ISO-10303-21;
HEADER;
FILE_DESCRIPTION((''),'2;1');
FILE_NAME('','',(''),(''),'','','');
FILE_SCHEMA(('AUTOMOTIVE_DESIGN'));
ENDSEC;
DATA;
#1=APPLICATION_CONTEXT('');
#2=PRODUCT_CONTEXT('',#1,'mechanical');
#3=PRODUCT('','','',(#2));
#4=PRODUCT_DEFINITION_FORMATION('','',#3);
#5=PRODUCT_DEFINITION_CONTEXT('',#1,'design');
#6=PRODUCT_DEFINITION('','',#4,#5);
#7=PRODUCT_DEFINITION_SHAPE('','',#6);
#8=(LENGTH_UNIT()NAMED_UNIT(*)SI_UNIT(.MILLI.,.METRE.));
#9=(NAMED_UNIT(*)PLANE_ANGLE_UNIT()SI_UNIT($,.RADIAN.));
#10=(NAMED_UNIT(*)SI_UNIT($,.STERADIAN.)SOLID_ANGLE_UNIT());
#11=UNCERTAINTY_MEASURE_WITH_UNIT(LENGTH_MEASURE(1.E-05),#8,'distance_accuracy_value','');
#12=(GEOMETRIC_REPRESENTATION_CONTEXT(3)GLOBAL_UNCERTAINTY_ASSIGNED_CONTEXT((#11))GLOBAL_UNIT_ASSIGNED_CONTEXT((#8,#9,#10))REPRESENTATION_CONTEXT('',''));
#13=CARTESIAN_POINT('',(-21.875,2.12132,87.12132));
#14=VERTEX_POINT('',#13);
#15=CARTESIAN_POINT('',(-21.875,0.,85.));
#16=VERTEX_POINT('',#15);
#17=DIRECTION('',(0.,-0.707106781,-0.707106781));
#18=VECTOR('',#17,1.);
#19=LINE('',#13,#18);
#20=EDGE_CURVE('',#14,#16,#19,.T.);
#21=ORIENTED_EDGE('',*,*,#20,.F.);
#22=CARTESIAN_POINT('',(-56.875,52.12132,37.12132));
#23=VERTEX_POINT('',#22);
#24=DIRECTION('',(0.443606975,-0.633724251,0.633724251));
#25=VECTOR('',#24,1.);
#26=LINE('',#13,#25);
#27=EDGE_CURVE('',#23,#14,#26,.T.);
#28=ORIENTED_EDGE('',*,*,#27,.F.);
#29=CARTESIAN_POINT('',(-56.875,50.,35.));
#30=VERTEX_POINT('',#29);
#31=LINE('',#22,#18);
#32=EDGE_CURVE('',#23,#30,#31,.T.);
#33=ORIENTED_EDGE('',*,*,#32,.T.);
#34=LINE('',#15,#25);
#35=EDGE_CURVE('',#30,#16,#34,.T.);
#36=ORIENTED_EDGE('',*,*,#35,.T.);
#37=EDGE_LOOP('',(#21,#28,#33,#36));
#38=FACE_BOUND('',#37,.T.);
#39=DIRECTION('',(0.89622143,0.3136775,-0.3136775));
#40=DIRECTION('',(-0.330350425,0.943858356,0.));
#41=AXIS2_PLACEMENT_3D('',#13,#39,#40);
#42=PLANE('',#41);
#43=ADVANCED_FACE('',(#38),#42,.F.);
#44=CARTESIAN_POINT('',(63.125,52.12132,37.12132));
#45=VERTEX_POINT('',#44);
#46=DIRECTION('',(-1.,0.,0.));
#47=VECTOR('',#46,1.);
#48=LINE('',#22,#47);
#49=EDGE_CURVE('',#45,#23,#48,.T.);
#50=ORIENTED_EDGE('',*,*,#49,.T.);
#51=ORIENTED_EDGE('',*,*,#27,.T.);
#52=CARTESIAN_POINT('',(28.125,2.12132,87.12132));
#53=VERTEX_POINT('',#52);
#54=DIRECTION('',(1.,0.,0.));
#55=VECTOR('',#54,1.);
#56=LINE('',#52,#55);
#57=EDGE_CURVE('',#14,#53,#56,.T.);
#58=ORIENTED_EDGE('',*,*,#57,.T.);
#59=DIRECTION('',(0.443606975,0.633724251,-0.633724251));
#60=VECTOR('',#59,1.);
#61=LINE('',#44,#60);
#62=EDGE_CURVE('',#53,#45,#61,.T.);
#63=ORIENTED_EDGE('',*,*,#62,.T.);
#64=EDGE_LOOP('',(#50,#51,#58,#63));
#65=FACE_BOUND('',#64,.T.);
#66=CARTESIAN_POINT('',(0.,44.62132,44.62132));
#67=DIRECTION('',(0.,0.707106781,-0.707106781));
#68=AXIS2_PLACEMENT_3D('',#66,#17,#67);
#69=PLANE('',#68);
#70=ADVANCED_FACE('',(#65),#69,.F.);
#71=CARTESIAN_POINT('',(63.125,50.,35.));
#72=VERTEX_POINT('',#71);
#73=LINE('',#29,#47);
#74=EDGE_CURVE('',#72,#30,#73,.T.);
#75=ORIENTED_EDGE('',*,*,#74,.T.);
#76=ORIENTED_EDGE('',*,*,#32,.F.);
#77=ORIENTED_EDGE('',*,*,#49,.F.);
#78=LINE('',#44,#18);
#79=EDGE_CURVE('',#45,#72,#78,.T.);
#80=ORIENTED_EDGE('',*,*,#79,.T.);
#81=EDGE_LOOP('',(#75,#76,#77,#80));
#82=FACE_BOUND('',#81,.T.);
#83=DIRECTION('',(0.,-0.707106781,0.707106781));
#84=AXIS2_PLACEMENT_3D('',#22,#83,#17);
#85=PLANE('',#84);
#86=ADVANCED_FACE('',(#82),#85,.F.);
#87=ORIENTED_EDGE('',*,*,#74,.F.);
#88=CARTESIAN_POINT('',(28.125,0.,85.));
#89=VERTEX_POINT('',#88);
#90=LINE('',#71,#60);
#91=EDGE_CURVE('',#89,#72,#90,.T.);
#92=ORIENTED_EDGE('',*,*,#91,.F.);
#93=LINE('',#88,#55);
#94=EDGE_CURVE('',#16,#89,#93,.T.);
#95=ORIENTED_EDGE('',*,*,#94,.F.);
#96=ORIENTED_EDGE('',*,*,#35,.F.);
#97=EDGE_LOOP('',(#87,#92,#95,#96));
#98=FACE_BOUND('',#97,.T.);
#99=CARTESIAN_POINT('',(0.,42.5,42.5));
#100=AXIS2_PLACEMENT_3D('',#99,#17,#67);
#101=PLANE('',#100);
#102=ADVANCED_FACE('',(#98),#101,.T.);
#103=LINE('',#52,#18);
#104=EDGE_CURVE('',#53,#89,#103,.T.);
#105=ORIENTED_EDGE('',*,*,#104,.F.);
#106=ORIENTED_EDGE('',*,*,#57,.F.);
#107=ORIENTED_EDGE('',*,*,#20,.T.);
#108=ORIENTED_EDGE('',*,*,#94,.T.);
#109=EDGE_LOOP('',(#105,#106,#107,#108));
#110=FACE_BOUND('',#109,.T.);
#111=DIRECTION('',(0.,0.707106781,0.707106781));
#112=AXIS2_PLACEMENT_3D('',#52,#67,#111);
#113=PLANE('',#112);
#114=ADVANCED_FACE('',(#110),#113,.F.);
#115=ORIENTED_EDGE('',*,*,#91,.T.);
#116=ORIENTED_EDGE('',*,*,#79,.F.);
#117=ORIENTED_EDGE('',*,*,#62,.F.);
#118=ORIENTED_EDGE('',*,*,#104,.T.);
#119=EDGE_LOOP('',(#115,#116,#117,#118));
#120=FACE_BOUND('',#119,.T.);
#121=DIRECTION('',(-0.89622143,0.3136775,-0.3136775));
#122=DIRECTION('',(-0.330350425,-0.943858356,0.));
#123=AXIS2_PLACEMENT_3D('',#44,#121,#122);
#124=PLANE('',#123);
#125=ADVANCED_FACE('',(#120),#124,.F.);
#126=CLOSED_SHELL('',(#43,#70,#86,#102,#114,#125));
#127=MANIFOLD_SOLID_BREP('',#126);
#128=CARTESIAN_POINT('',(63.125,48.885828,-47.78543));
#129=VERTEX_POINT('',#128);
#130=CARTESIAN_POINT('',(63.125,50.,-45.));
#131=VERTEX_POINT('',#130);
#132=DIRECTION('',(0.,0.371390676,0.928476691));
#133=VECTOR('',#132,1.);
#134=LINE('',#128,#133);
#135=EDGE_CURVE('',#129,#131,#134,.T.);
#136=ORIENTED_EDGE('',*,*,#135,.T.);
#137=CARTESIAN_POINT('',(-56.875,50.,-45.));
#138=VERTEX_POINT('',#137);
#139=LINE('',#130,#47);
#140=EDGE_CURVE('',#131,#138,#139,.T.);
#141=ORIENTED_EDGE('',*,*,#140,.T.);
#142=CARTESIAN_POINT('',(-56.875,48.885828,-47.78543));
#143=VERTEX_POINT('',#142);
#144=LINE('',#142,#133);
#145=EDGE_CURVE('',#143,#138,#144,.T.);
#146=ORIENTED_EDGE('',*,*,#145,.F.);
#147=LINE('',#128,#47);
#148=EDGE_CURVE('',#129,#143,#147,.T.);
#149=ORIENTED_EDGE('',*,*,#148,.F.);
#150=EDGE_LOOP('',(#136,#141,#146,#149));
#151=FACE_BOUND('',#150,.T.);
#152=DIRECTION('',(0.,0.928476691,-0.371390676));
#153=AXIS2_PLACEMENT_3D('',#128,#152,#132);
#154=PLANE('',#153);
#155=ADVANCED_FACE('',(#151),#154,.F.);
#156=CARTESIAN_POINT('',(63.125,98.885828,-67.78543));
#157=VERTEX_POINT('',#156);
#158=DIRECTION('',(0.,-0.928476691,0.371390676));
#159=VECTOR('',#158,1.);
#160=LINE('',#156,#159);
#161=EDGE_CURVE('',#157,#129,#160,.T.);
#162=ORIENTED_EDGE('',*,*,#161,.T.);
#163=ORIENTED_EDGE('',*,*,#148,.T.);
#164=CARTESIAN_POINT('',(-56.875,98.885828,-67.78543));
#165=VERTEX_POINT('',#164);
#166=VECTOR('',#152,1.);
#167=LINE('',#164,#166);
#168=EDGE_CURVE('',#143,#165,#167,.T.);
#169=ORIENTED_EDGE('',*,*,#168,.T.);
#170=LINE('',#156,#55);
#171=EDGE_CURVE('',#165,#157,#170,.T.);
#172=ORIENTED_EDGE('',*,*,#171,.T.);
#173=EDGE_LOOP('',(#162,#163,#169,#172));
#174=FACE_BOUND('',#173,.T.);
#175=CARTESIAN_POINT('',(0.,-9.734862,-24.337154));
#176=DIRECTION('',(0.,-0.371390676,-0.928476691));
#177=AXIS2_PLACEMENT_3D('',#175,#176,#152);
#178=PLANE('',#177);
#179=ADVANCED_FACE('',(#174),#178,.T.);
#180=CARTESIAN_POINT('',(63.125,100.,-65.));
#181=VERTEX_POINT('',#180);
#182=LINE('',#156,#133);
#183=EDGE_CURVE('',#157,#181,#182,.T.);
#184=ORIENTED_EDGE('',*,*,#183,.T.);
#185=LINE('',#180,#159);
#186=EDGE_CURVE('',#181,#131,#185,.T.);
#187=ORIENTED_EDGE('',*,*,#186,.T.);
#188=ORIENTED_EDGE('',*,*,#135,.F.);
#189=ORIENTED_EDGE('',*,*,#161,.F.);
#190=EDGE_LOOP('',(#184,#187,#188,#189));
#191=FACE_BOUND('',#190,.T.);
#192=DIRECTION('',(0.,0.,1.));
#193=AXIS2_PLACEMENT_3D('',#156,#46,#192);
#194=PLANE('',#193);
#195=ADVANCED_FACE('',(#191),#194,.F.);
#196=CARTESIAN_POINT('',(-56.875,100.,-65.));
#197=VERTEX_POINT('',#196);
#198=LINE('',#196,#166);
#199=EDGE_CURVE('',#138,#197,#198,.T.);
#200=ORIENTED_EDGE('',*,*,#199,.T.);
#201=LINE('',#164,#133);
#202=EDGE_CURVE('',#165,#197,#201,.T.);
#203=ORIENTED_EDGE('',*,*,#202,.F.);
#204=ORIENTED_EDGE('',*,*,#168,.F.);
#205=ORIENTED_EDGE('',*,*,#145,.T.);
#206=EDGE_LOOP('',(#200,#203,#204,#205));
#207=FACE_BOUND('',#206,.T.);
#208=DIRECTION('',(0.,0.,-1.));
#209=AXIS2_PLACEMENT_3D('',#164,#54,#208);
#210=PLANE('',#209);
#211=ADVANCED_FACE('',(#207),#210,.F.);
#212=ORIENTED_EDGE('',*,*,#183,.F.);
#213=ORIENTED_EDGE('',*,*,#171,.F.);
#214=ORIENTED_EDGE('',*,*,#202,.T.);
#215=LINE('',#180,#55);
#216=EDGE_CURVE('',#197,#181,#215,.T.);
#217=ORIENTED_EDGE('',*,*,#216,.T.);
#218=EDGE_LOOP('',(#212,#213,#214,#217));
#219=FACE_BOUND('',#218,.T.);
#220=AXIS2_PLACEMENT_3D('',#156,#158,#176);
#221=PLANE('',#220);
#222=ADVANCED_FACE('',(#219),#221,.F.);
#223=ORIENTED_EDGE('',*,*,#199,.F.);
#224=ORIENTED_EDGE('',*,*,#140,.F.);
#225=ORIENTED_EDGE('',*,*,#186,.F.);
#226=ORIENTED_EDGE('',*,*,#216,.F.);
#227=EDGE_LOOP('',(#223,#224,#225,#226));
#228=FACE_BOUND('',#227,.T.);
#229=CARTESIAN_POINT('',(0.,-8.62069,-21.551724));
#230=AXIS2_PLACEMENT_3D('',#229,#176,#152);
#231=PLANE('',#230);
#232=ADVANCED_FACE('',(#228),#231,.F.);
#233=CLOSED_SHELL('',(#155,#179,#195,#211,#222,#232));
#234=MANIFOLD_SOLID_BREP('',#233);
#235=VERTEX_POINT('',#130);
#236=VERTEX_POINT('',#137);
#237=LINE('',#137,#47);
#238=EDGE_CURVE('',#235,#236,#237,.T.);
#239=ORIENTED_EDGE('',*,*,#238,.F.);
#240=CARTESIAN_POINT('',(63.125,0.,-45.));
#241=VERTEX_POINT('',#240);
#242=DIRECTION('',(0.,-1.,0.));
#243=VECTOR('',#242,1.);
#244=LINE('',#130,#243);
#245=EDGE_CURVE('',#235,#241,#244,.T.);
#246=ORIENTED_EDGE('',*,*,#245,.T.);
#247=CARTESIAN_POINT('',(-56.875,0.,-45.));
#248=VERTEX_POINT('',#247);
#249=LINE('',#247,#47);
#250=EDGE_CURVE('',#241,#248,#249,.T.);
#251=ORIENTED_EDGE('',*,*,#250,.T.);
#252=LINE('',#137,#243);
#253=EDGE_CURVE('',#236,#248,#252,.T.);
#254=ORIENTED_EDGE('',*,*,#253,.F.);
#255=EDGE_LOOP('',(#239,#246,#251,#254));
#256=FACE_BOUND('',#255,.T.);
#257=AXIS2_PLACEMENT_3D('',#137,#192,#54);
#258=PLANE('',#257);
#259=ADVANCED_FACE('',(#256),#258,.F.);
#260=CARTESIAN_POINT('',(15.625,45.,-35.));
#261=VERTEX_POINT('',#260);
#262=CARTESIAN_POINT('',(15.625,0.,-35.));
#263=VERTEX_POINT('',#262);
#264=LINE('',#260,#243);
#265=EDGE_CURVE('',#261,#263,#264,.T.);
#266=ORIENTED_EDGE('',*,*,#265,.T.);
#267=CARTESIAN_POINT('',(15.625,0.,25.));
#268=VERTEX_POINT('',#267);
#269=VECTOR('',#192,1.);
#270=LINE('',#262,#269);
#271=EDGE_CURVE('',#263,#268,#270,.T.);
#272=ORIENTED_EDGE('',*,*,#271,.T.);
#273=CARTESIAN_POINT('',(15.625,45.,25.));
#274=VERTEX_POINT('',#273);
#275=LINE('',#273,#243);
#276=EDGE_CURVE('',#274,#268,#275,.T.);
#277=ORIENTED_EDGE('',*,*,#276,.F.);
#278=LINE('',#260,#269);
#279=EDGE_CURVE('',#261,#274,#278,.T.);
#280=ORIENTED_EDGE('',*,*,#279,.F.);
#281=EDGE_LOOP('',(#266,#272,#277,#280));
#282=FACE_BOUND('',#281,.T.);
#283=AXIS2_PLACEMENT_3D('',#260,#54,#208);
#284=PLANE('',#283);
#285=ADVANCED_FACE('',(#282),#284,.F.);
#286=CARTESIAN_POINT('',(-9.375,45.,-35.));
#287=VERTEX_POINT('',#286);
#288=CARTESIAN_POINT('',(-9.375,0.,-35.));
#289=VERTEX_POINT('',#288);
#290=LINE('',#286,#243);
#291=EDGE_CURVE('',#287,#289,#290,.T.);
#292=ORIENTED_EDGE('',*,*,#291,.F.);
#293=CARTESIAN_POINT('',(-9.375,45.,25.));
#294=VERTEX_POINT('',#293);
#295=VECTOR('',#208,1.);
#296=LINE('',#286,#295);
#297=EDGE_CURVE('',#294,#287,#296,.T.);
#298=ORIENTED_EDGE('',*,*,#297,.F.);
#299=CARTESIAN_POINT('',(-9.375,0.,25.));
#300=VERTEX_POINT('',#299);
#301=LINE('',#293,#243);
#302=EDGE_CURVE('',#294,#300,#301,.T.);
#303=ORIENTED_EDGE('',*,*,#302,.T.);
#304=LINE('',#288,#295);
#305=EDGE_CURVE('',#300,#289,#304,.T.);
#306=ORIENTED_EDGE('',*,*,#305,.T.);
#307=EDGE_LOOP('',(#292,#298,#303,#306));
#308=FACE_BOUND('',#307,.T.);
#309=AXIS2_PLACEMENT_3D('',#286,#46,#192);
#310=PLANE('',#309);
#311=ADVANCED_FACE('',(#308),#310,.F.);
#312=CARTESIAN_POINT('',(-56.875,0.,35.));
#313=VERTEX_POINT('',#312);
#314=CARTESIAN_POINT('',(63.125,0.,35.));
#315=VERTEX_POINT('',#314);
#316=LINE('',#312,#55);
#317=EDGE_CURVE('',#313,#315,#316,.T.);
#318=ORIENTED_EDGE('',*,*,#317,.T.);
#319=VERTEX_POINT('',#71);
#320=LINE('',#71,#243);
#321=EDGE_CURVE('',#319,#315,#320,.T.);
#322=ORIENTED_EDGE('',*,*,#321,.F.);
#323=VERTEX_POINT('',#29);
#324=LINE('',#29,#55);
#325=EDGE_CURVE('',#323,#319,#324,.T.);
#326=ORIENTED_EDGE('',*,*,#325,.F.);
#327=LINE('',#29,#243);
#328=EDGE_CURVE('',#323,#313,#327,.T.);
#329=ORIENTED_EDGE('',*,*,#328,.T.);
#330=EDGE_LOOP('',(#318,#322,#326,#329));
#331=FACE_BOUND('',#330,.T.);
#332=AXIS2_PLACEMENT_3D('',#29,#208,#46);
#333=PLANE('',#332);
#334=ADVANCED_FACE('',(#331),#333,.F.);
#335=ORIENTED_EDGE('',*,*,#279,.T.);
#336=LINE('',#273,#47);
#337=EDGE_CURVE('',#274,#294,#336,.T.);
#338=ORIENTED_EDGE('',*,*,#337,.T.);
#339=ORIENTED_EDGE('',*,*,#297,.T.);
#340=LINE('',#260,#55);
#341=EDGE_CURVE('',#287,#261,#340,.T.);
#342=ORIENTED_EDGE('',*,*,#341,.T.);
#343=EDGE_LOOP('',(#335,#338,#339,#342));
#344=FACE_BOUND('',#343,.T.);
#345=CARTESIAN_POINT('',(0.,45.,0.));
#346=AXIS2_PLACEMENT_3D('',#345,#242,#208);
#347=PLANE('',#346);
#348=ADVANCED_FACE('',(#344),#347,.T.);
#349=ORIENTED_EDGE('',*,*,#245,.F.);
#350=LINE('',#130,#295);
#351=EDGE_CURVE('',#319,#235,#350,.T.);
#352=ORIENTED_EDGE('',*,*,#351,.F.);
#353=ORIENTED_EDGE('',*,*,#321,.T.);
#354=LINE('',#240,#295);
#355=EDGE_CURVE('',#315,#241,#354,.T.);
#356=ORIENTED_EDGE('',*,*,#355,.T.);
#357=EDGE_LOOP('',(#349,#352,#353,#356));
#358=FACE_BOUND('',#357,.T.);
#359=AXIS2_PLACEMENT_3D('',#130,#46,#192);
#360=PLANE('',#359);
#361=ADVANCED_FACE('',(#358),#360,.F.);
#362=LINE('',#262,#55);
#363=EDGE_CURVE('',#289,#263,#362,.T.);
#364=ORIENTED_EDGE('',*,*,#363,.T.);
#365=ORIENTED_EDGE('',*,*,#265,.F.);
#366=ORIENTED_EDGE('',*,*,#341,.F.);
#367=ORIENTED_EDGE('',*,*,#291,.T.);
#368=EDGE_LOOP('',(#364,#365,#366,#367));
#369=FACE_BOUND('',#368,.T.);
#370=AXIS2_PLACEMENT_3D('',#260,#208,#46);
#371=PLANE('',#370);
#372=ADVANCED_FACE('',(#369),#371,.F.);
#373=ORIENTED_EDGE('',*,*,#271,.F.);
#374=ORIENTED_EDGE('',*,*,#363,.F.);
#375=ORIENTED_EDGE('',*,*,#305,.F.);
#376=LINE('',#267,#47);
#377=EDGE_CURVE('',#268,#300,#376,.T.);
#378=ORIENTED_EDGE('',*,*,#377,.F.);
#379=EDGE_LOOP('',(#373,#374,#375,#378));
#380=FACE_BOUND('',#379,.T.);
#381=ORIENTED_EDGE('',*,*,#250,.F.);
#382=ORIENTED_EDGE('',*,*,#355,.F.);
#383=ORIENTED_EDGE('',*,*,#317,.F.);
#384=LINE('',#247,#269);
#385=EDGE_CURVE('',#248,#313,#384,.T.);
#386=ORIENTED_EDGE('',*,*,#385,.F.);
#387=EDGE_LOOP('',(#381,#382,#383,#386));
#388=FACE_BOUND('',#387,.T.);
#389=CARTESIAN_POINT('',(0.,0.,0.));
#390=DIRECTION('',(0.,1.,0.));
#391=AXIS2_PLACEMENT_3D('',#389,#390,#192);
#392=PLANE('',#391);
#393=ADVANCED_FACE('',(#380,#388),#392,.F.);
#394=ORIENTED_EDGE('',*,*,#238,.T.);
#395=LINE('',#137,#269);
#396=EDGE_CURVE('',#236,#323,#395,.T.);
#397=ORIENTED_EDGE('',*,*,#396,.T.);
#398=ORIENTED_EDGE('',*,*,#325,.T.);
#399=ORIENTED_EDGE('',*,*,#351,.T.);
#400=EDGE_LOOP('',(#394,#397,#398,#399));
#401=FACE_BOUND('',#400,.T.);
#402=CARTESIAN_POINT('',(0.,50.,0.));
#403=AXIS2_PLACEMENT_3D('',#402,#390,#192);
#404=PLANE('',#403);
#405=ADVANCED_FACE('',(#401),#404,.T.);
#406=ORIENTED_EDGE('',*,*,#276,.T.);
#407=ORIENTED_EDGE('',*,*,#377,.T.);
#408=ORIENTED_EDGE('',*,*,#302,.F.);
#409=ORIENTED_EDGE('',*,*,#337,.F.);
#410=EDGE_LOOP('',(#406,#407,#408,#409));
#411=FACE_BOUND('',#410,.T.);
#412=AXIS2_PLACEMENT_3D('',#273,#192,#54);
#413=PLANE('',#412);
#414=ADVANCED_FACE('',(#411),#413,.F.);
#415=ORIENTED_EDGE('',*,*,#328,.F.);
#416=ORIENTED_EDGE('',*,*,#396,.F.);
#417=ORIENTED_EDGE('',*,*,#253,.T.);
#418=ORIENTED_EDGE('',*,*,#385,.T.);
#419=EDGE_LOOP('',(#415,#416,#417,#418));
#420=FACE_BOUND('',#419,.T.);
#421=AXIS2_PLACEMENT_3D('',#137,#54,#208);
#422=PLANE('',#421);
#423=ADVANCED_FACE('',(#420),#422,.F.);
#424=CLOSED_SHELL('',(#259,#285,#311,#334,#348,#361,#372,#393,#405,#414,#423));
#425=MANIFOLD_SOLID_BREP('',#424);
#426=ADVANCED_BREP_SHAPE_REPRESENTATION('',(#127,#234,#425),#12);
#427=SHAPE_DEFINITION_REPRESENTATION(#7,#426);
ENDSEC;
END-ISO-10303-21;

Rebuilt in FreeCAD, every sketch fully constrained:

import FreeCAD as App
import Part
import Sketcher

V = App.Vector
Q = App.Units.Quantity

doc = App.newDocument("Part")
body = doc.addObject("PartDesign::Body", "Body")

# Sketch on XZ plane
sketch1 = body.newObject("Sketcher::SketchObject", "Sketch")
sketch1.AttachmentSupport = (doc.getObject("XZ_Plane"), [""])
sketch1.MapMode = "FlatFace"
sketch1.addGeometry([
    Part.LineSegment(V(-57, -45, 0), V(-57, 35, 0)),
    Part.LineSegment(V(-57, 35, 0), V(63, 35, 0)),
    Part.LineSegment(V(63, 35, 0), V(63, -45, 0)),
    Part.LineSegment(V(63, -45, 0), V(-57, -45, 0)),
], False)
sketch1.addConstraint([
    Sketcher.Constraint("Coincident", 0, 2, 1, 1),
    Sketcher.Constraint("Coincident", 1, 2, 2, 1),
    Sketcher.Constraint("Coincident", 2, 2, 3, 1),
    Sketcher.Constraint("Coincident", 3, 2, 0, 1),
    Sketcher.Constraint("Vertical", 0),
    Sketcher.Constraint("Horizontal", 1),
    Sketcher.Constraint("Vertical", 2),
    Sketcher.Constraint("Horizontal", 3),
    Sketcher.Constraint("DistanceX", 1, 1, 1, 2, Q("120 mm")),
    Sketcher.Constraint("DistanceY", 0, 1, 0, 2, Q("80 mm")),
    Sketcher.Constraint("DistanceY", -1, 1, 0, 2, Q("35 mm")),
    Sketcher.Constraint("DistanceX", 0, 2, -1, 1, Q("56.875 mm")),
])
pad1 = body.newObject("PartDesign::Pad", "Pad")
pad1.Profile = sketch1
pad1.Length = 50
pad1.Reversed = True

# Sketch on XZ plane
sketch2 = body.newObject("Sketcher::SketchObject", "Sketch001")
sketch2.AttachmentSupport = (doc.getObject("XZ_Plane"), [""])
sketch2.MapMode = "FlatFace"
sketch2.addGeometry([
    Part.LineSegment(V(-9, 25, 0), V(-9, -35, 0)),
    Part.LineSegment(V(-9, -35, 0), V(16, -35, 0)),
    Part.LineSegment(V(16, -35, 0), V(16, 25, 0)),
    Part.LineSegment(V(16, 25, 0), V(-9, 25, 0)),
], False)
sketch2.addConstraint([
    Sketcher.Constraint("Coincident", 0, 2, 1, 1),
    Sketcher.Constraint("Coincident", 1, 2, 2, 1),
    Sketcher.Constraint("Coincident", 2, 2, 3, 1),
    Sketcher.Constraint("Coincident", 3, 2, 0, 1),
    Sketcher.Constraint("Vertical", 0),
    Sketcher.Constraint("Horizontal", 1),
    Sketcher.Constraint("Vertical", 2),
    Sketcher.Constraint("Horizontal", 3),
    Sketcher.Constraint("DistanceX", 1, 1, 1, 2, Q("25 mm")),
    Sketcher.Constraint("DistanceY", 0, 2, 0, 1, Q("60 mm")),
    Sketcher.Constraint("DistanceY", 0, 2, -1, 1, Q("35 mm")),
    Sketcher.Constraint("DistanceX", 0, 2, -1, 1, Q("9.375 mm")),
])
pocket1 = body.newObject("PartDesign::Pocket", "Pocket")
pocket1.Profile = sketch2
pocket1.Length = 45
body2 = doc.addObject("PartDesign::Body", "Body001")

# Sketch on an angled plane
sketch3 = body2.newObject("Sketcher::SketchObject", "Sketch002")
sketch3.Placement = App.Placement(V(0, -8.62069, -21.551724), App.Rotation(V(-1, 0, 0), V(0, 0.928476691, -0.371390676), V(0, -0.371390676, -0.928476691), "ZXY"))
sketch3.addGeometry([
    Part.LineSegment(V(-63, 117, 0), V(-63, 63, 0)),
    Part.LineSegment(V(-63, 63, 0), V(57, 63, 0)),
    Part.LineSegment(V(57, 63, 0), V(57, 117, 0)),
    Part.LineSegment(V(57, 117, 0), V(-63, 117, 0)),
], False)
sketch3.addConstraint([
    Sketcher.Constraint("Coincident", 0, 2, 1, 1),
    Sketcher.Constraint("Coincident", 1, 2, 2, 1),
    Sketcher.Constraint("Coincident", 2, 2, 3, 1),
    Sketcher.Constraint("Coincident", 3, 2, 0, 1),
    Sketcher.Constraint("Vertical", 0),
    Sketcher.Constraint("Horizontal", 1),
    Sketcher.Constraint("Vertical", 2),
    Sketcher.Constraint("Horizontal", 3),
    Sketcher.Constraint("DistanceX", 1, 1, 1, 2, Q("120 mm")),
    Sketcher.Constraint("DistanceX", 0, 2, -1, 1, Q("63.125 mm")),
    Sketcher.Constraint("DistanceY", 0, 2, 0, 1, Q("53.851648 mm")),
    Sketcher.Constraint("DistanceY", -1, 1, 0, 2, Q("63.136415 mm")),
])
pad2 = body2.newObject("PartDesign::Pad", "Pad001")
pad2.Profile = sketch3
pad2.Length = 3
body3 = doc.addObject("PartDesign::Body", "Body002")

# Sketch on an angled plane
sketch4 = body3.newObject("Sketcher::SketchObject", "Sketch003")
sketch4.Placement = App.Placement(V(0, 42.5, 42.5), App.Rotation(V(1, 0, 0), V(0, 0.707106781, -0.707106781), V(0, 0.707106781, 0.707106781), "ZXY"))
sketch4.addGeometry([
    Part.LineSegment(V(-57, 11, 0), V(-22, -60, 0)),
    Part.LineSegment(V(-22, -60, 0), V(28, -60, 0)),
    Part.LineSegment(V(28, -60, 0), V(63, 11, 0)),
    Part.LineSegment(V(63, 11, 0), V(-57, 11, 0)),
], False)
sketch4.addConstraint([
    Sketcher.Constraint("Coincident", 0, 2, 1, 1),
    Sketcher.Constraint("Coincident", 1, 2, 2, 1),
    Sketcher.Constraint("Coincident", 2, 2, 3, 1),
    Sketcher.Constraint("Coincident", 3, 2, 0, 1),
    Sketcher.Constraint("Horizontal", 1),
    Sketcher.Constraint("Horizontal", 3),
    Sketcher.Constraint("Equal", 0, 2),
    Sketcher.Constraint("DistanceX", 1, 1, 1, 2, Q("50 mm")),
    Sketcher.Constraint("DistanceX", 3, 2, 3, 1, Q("120 mm")),
    Sketcher.Constraint("DistanceX", 0, 2, -1, 1, Q("21.875 mm")),
    Sketcher.Constraint("DistanceY", -1, 1, 2, 2, Q("10.606602 mm")),
    Sketcher.Constraint("Distance", 0, Q("78.898669 mm")),
])
pad3 = body3.newObject("PartDesign::Pad", "Pad002")
pad3.Profile = sketch4
pad3.Length = 3

doc.recompute()
